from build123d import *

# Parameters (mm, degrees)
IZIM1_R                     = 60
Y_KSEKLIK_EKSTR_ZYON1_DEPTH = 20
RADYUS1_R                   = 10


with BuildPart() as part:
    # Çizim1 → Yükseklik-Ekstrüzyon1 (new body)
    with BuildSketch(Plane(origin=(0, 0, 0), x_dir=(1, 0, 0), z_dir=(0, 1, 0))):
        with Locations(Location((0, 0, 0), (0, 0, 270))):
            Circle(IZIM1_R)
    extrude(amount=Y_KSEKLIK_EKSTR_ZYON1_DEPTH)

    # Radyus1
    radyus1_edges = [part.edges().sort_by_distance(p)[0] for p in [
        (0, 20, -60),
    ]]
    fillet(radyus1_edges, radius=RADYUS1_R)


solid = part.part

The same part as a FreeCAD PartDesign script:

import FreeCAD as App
import Part
import Sketcher
Q = App.Units.Quantity


def edges_at(feature, points):
    """Names of the edges that pass closest to the given points."""
    edges = feature.Shape.Edges
    near = lambda p: min(range(len(edges)), key=lambda i: edges[i].distToShape(Part.Vertex(*p))[0])
    return sorted({f"Edge{near(p) + 1}" for p in points})

doc = App.newDocument("Part")
body = doc.addObject("PartDesign::Body", "Body")

# Sketch on XZ plane
sketch1 = doc.addObject("Sketcher::SketchObject", "Sketch")
body.addObject(sketch1)
sketch1.AttachmentSupport = (doc.XZ_Plane, [""])
sketch1.MapMode = "FlatFace"
sketch1.addGeometry(Part.Circle(App.Vector(0, 0, 0), App.Vector(0, 0, 1), 60), False)
sketch1.addConstraint([
    Sketcher.Constraint("Coincident", 0, 3, -1, 1),
    Sketcher.Constraint("Diameter", 0, Q("120 mm")),
])
pad1 = doc.addObject("PartDesign::Pad", "Pad")
body.addObject(pad1)
pad1.Profile = sketch1
pad1.Length = 20
pad1.Reversed = True
doc.recompute()

fillet = doc.addObject("PartDesign::Fillet", "Fillet")
body.addObject(fillet)
fillet.Base = (pad1, edges_at(pad1, [(0, 20, -60)]))
fillet.Radius = 10

doc.recompute()
